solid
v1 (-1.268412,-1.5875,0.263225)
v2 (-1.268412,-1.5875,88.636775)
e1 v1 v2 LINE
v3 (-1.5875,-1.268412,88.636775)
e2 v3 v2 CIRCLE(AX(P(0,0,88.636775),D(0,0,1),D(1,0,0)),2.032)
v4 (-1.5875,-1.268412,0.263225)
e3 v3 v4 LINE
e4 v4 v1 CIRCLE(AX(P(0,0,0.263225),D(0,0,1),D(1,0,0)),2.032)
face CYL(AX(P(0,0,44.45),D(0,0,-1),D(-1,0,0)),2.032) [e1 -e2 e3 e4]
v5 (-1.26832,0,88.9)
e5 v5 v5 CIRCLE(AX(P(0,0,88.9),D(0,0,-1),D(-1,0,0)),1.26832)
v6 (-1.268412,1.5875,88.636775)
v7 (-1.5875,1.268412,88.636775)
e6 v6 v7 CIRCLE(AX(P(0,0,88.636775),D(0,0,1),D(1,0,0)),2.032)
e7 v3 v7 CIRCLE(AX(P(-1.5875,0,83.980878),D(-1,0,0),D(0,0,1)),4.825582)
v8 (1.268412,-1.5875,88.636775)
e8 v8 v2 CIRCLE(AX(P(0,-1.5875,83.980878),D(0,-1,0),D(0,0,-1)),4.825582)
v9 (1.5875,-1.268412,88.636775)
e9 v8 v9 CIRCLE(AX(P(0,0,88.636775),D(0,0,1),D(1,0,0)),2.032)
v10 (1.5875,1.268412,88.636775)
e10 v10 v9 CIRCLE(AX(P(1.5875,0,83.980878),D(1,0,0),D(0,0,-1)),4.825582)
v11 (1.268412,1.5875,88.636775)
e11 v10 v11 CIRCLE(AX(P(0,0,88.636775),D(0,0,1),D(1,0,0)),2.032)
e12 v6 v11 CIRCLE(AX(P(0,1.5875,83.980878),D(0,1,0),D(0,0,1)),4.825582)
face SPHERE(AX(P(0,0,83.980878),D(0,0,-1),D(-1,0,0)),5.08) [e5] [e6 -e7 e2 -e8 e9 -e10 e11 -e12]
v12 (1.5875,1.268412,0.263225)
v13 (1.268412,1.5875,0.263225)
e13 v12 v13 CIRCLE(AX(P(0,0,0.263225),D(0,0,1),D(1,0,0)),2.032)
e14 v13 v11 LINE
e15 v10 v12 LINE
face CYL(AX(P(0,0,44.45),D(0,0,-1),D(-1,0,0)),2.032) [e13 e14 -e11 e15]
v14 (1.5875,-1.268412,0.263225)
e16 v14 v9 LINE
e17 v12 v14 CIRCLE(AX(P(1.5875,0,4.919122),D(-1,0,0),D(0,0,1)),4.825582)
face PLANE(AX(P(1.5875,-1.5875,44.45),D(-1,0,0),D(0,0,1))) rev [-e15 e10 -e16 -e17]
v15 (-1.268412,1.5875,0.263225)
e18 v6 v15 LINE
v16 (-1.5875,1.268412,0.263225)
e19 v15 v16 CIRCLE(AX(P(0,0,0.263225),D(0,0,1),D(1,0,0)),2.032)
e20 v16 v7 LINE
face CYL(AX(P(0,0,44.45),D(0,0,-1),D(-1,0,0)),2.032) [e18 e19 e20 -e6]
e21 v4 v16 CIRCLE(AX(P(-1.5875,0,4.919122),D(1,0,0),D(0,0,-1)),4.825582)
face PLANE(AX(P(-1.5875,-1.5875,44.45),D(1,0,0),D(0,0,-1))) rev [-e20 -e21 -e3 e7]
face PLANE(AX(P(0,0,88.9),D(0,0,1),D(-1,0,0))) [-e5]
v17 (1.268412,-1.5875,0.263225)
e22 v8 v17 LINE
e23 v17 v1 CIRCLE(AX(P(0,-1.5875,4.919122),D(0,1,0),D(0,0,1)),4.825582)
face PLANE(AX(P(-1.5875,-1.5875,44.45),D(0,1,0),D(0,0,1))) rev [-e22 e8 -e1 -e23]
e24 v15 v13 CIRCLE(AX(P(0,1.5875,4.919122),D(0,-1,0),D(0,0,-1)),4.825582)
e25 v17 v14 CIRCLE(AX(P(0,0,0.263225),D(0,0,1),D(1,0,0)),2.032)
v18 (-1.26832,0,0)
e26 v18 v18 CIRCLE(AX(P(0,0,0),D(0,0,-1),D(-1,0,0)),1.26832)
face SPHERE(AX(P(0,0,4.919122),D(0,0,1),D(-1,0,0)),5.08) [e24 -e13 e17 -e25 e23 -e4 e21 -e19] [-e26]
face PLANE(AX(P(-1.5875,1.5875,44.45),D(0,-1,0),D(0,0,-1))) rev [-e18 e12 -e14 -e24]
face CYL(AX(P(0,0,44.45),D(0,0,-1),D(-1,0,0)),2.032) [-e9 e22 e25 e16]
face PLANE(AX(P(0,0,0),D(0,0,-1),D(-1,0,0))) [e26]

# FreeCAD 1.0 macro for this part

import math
import FreeCAD as App
import Part
import Sketcher
Q = App.Units.Quantity

doc = App.newDocument("Part")
body = doc.addObject("PartDesign::Body", "Body")

sketch1 = body.newObject("Sketcher::SketchObject", "Sketch")
sketch1.AttachmentSupport = (doc.getObject("XY_Plane"), [""])
sketch1.MapMode = "FlatFace"
sketch1.addGeometry(Part.LineSegment(App.Vector(-1.6, 1.6, 0), App.Vector(-1.6, -1.6, 0)), False)
sketch1.addGeometry(Part.LineSegment(App.Vector(-1.6, -1.6, 0), App.Vector(1.6, -1.6, 0)), False)
sketch1.addGeometry(Part.LineSegment(App.Vector(1.6, -1.6, 0), App.Vector(1.6, 1.6, 0)), False)
sketch1.addGeometry(Part.LineSegment(App.Vector(1.6, 1.6, 0), App.Vector(-1.6, 1.6, 0)), False)
sketch1.addConstraint(Sketcher.Constraint("Coincident", 0, 2, 1, 1))
sketch1.addConstraint(Sketcher.Constraint("Coincident", 1, 2, 2, 1))
sketch1.addConstraint(Sketcher.Constraint("Coincident", 2, 2, 3, 1))
sketch1.addConstraint(Sketcher.Constraint("Coincident", 3, 2, 0, 1))
sketch1.addConstraint(Sketcher.Constraint("Vertical", 0))
sketch1.addConstraint(Sketcher.Constraint("Horizontal", 1))
sketch1.addConstraint(Sketcher.Constraint("Vertical", 2))
sketch1.addConstraint(Sketcher.Constraint("Horizontal", 3))
sketch1.addConstraint(Sketcher.Constraint("Symmetric", 0, 2, 2, 2, -1, 1))
sketch1.addConstraint(Sketcher.Constraint("Equal", 3, 0))
sketch1.addConstraint(Sketcher.Constraint("DistanceX", 1, 1, 1, 2, Q("0.125 in")))
pad1 = body.newObject("PartDesign::Pad", "Pad")
pad1.Profile = sketch1
pad1.Length = Q("1.75 in")

sketch2 = body.newObject("Sketcher::SketchObject", "Sketch001")
sketch2.AttachmentSupport = (doc.getObject("XY_Plane"), [""])
sketch2.MapMode = "FlatFace"
sketch2.addGeometry(Part.LineSegment(App.Vector(7.1, 7.1, 0), App.Vector(7.1, -7.1, 0)), False)
sketch2.addGeometry(Part.LineSegment(App.Vector(7.1, -7.1, 0), App.Vector(-7.1, -7.1, 0)), False)
sketch2.addGeometry(Part.LineSegment(App.Vector(-7.1, -7.1, 0), App.Vector(-7.1, 7.1, 0)), False)
sketch2.addGeometry(Part.LineSegment(App.Vector(-7.1, 7.1, 0), App.Vector(7.1, 7.1, 0)), False)
sketch2.addGeometry(Part.Circle(App.Vector(0, 0, 0), App.Vector(0, 0, 1), 2), False)
sketch2.addConstraint(Sketcher.Constraint("Coincident", 0, 2, 1, 1))
sketch2.addConstraint(Sketcher.Constraint("Coincident", 1, 2, 2, 1))
sketch2.addConstraint(Sketcher.Constraint("Coincident", 2, 2, 3, 1))
sketch2.addConstraint(Sketcher.Constraint("Coincident", 3, 2, 0, 1))
sketch2.addConstraint(Sketcher.Constraint("Vertical", 0))
sketch2.addConstraint(Sketcher.Constraint("Horizontal", 1))
sketch2.addConstraint(Sketcher.Constraint("Vertical", 2))
sketch2.addConstraint(Sketcher.Constraint("Horizontal", 3))
sketch2.addConstraint(Sketcher.Constraint("Coincident", 4, 3, -1, 1))
sketch2.addConstraint(Sketcher.Constraint("Diameter", 4, Q("0.16 in")))
sketch2.addConstraint(Sketcher.Constraint("DistanceX", 1, 2, 1, 1, 14.112))
sketch2.addConstraint(Sketcher.Constraint("DistanceY", 0, 2, 0, 1, 14.111))
sketch2.addConstraint(Sketcher.Constraint("DistanceX", -1, 1, 0, 2, 7.056))
sketch2.addConstraint(Sketcher.Constraint("DistanceY", 0, 2, -1, 1, 7.056))
pocket1 = body.newObject("PartDesign::Pocket", "Pocket")
pocket1.Profile = sketch2
pocket1.Type = "ThroughAll"
pocket1.Reversed = True

sketch3 = body.newObject("Sketcher::SketchObject", "Sketch002")
sketch3.AttachmentSupport = (doc.getObject("XZ_Plane"), [""])
sketch3.MapMode = "FlatFace"
sketch3.addGeometry(Part.LineSegment(App.Vector(-5, -6, 0), App.Vector(-5, 4, 0)), False)
sketch3.addGeometry(Part.ArcOfCircle(Part.Circle(App.Vector(0, 5, 0), App.Vector(0, 0, 1), 5), math.radians(-174), math.radians(-90)), False)
sketch3.addGeometry(Part.LineSegment(App.Vector(0, 0, 0), App.Vector(0, -6, 0)), False)
sketch3.addGeometry(Part.LineSegment(App.Vector(0, -6, 0), App.Vector(-5, -6, 0)), False)
sketch3.addConstraint(Sketcher.Constraint("Coincident", 0, 2, 1, 1))
sketch3.addConstraint(Sketcher.Constraint("Coincident", 1, 2, 2, 1))
sketch3.addConstraint(Sketcher.Constraint("Coincident", 2, 2, 3, 1))
sketch3.addConstraint(Sketcher.Constraint("Coincident", 3, 2, 0, 1))
sketch3.addConstraint(Sketcher.Constraint("Vertical", 0))
sketch3.addConstraint(Sketcher.Constraint("Vertical", 2))
sketch3.addConstraint(Sketcher.Constraint("Horizontal", 3))
sketch3.addConstraint(Sketcher.Constraint("PointOnObject", 1, 3, -2))
sketch3.addConstraint(Sketcher.Constraint("PointOnObject", 1, 2, -2))
sketch3.addConstraint(Sketcher.Constraint("Radius", 1, Q("0.2 in")))
sketch3.addConstraint(Sketcher.Constraint("DistanceX", 3, 2, 3, 1, 5.053686))
sketch3.addConstraint(Sketcher.Constraint("DistanceY", 0, 1, 0, 2, 10.143263))
sketch3.addConstraint(Sketcher.Constraint("DistanceY", 2, 2, -1, 1, 5.740531))
groove = body.newObject("PartDesign::Groove", "Groove")
groove.Profile = sketch3
groove.ReferenceAxis = (sketch3, ["V_Axis"])
groove.Angle = 360
body2 = doc.addObject("PartDesign::Body", "Body001")
doc.recompute()

body2.BaseFeature = body
doc.recompute()

mirroring = doc.addObject("Part::Mirroring", "Mirroring")
mirroring.Source = body
mirroring.Base = App.Vector(0, 0, 44.45)
mirroring.Normal = App.Vector(0, 0, -1)
body3 = doc.addObject("PartDesign::Body", "Body002")
body3.BaseFeature = mirroring
boolean = body2.newObject("PartDesign::Boolean", "Boolean")
boolean.Type = "Fuse"
boolean.addObjects([body3])
doc.recompute()
mirroring.Visibility = False

doc.recompute()
